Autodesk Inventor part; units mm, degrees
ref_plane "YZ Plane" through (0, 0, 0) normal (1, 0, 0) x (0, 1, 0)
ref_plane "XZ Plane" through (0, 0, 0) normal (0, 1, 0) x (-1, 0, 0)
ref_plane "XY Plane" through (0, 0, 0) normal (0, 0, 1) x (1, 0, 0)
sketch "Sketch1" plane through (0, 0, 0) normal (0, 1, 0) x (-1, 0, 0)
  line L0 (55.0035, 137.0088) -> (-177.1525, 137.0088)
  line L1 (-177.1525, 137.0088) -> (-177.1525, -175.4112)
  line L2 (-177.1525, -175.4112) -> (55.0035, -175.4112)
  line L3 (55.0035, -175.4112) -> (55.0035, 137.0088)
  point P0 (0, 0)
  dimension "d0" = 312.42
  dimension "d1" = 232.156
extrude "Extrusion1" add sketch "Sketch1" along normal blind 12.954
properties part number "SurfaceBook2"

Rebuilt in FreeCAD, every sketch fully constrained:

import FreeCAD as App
import Part
import Sketcher
from FreeCAD import Vector
Q = App.Units.Quantity


def add_polygon(sketch, points):
    """Adds a closed chain of lines whose ends are joined by coincident constraints."""
    first, n = sketch.GeometryCount, len(points)
    for a, b in zip(points, points[1:] + points[:1]):
        sketch.addGeometry(Part.LineSegment(App.Vector(*a, 0), App.Vector(*b, 0)), False)
    for i in range(n):
        sketch.addConstraint(Sketcher.Constraint("Coincident", first + i, 2, first + (i + 1) % n, 1))

doc = App.newDocument("Part")
body = doc.addObject("PartDesign::Body", "Body")

# Sketch on XZ plane
sketch1 = doc.addObject("Sketcher::SketchObject", "Sketch")
body.addObject(sketch1)
sketch1.AttachmentSupport = (doc.XZ_Plane, [""])
sketch1.MapMode = "FlatFace"
add_polygon(sketch1, [(-55, -175), (-55, 137), (177, 137), (177, -175)])  # lines 0-3
sketch1.addConstraint(Sketcher.Constraint("Vertical", 0))
sketch1.addConstraint(Sketcher.Constraint("Horizontal", 1))
sketch1.addConstraint(Sketcher.Constraint("Vertical", 2))
sketch1.addConstraint(Sketcher.Constraint("Horizontal", 3))
sketch1.addConstraint(Sketcher.Constraint("DistanceY", 0, 1, 0, 2, Q("12.3 in")))
sketch1.addConstraint(Sketcher.Constraint("DistanceX", 1, 1, 1, 2, Q("9.14 in")))
sketch1.addConstraint(Sketcher.Constraint("DistanceX", 0, 2, -1, 1, Q("2.1655 in")))
sketch1.addConstraint(Sketcher.Constraint("DistanceY", -1, 1, 0, 2, Q("137.0088 mm")))
pad1 = doc.addObject("PartDesign::Pad", "Pad")
body.addObject(pad1)
pad1.Profile = sketch1
pad1.Length = Q("0.51 in")
pad1.Reversed = True

doc.recompute()
